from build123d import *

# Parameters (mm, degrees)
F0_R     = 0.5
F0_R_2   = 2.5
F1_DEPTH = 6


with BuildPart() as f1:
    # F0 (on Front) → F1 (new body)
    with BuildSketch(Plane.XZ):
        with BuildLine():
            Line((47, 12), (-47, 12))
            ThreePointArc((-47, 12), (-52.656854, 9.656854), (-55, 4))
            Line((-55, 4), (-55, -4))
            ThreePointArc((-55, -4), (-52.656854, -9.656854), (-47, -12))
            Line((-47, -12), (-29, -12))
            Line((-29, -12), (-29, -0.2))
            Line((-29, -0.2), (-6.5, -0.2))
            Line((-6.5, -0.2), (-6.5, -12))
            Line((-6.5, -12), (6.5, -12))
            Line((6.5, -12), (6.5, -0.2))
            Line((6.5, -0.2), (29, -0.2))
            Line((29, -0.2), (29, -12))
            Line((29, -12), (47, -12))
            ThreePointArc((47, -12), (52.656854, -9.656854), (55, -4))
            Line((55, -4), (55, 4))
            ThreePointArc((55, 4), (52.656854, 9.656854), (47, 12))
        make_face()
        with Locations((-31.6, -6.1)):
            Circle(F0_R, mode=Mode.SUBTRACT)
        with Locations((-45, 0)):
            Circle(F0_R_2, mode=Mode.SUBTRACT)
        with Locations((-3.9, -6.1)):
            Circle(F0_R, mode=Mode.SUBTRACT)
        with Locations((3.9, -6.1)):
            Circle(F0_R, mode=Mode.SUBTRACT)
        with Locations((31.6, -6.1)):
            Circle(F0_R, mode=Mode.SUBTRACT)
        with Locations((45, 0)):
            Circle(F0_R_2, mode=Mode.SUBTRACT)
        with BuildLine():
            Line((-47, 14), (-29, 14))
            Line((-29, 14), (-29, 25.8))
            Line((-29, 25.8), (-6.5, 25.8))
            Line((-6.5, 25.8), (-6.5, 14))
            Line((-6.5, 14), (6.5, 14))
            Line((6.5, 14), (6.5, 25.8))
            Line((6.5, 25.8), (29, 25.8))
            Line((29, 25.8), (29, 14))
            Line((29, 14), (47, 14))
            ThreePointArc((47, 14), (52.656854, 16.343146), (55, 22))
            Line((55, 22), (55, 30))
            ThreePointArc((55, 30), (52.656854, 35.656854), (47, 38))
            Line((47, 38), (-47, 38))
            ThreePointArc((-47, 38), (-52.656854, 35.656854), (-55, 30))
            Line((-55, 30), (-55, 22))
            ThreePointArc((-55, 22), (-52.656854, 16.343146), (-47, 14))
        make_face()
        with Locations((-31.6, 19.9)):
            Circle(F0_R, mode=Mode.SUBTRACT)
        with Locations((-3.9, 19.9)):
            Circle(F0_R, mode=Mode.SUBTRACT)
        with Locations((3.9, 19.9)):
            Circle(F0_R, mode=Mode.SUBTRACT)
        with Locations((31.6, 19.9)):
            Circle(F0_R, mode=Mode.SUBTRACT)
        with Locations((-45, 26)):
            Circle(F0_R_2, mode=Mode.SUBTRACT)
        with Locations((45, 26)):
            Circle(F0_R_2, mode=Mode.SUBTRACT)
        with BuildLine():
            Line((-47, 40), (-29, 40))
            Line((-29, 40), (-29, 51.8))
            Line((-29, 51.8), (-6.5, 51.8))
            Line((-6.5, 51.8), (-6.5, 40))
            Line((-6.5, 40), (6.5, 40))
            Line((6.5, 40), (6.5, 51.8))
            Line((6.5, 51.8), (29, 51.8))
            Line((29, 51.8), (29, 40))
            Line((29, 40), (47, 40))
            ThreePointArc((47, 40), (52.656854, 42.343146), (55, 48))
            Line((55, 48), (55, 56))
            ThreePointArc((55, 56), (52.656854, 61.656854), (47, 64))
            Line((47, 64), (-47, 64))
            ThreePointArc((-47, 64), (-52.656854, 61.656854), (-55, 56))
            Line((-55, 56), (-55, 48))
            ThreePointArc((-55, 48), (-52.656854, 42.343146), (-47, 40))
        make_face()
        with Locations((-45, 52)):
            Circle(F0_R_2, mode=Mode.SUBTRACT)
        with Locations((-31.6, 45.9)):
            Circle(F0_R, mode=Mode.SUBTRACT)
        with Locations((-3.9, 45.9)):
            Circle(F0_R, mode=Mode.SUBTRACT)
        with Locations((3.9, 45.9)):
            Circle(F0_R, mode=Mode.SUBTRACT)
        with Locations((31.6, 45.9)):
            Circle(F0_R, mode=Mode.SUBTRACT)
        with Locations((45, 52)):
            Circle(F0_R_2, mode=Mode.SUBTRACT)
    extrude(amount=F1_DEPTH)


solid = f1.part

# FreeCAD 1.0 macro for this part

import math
import FreeCAD as App
import Part
import Sketcher
Q = App.Units.Quantity

doc = App.newDocument("Part")
body = doc.addObject("PartDesign::Body", "Body")
body.AllowCompound = True

# Sketch on XZ plane
sketch1 = doc.addObject("Sketcher::SketchObject", "Sketch")
body.addObject(sketch1)
sketch1.AttachmentSupport = (doc.XZ_Plane, [""])
sketch1.MapMode = "FlatFace"
sketch1.addGeometry([
    Part.LineSegment(App.Vector(47, 12, 0), App.Vector(-47, 12, 0)),  # 0
    Part.ArcOfCircle(Part.Circle(App.Vector(-46.999999, 3.999999, 0), App.Vector(0, 0, 1), 8.000001), math.radians(90.000006), math.radians(179.999994)),  # 1
    Part.LineSegment(App.Vector(-55, 4, 0), App.Vector(-55, -4, 0)),  # 2
    Part.ArcOfCircle(Part.Circle(App.Vector(-46.999999, -3.999999, 0), App.Vector(0, 0, 1), 8.000001), math.radians(-179.999994), math.radians(-90.000006)),  # 3
    Part.LineSegment(App.Vector(-47, -12, 0), App.Vector(-29, -12, 0)),  # 4
    Part.LineSegment(App.Vector(-29, -12, 0), App.Vector(-29, -0.2, 0)),  # 5
    Part.LineSegment(App.Vector(-29, -0.2, 0), App.Vector(-6.5, -0.2, 0)),  # 6
    Part.LineSegment(App.Vector(-6.5, -0.2, 0), App.Vector(-6.5, -12, 0)),  # 7
    Part.LineSegment(App.Vector(-6.5, -12, 0), App.Vector(6.5, -12, 0)),  # 8
    Part.LineSegment(App.Vector(6.5, -12, 0), App.Vector(6.5, -0.2, 0)),  # 9
    Part.LineSegment(App.Vector(6.5, -0.2, 0), App.Vector(29, -0.2, 0)),  # 10
    Part.LineSegment(App.Vector(29, -0.2, 0), App.Vector(29, -12, 0)),  # 11
    Part.LineSegment(App.Vector(29, -12, 0), App.Vector(47, -12, 0)),  # 12
    Part.ArcOfCircle(Part.Circle(App.Vector(46.999999, -3.999999, 0), App.Vector(0, 0, 1), 8.000001), math.radians(-89.999994), math.radians(-0.000006)),  # 13
    Part.LineSegment(App.Vector(55, -4, 0), App.Vector(55, 4, 0)),  # 14
    Part.ArcOfCircle(Part.Circle(App.Vector(46.999999, 3.999999, 0), App.Vector(0, 0, 1), 8.000001), math.radians(0.000006), math.radians(89.999994)),  # 15
    Part.Circle(App.Vector(-31.6, -6.1, 0), App.Vector(0, 0, 1), 0.5),  # 16
    Part.Circle(App.Vector(-3.9, -6.1, 0), App.Vector(0, 0, 1), 0.5),  # 17
    Part.Circle(App.Vector(3.9, -6.1, 0), App.Vector(0, 0, 1), 0.5),  # 18
    Part.Circle(App.Vector(31.6, -6.1, 0), App.Vector(0, 0, 1), 0.5),  # 19
    Part.Circle(App.Vector(-45, 0, 0), App.Vector(0, 0, 1), 2.5),  # 20
    Part.Circle(App.Vector(45, 0, 0), App.Vector(0, 0, 1), 2.5),  # 21
    Part.LineSegment(App.Vector(-47, 14, 0), App.Vector(-29, 14, 0)),  # 22
    Part.LineSegment(App.Vector(-29, 14, 0), App.Vector(-29, 25.8, 0)),  # 23
    Part.LineSegment(App.Vector(-29, 25.8, 0), App.Vector(-6.5, 25.8, 0)),  # 24
    Part.LineSegment(App.Vector(-6.5, 25.8, 0), App.Vector(-6.5, 14, 0)),  # 25
    Part.LineSegment(App.Vector(-6.5, 14, 0), App.Vector(6.5, 14, 0)),  # 26
    Part.LineSegment(App.Vector(6.5, 14, 0), App.Vector(6.5, 25.8, 0)),  # 27
    Part.LineSegment(App.Vector(6.5, 25.8, 0), App.Vector(29, 25.8, 0)),  # 28
    Part.LineSegment(App.Vector(29, 25.8, 0), App.Vector(29, 14, 0)),  # 29
    Part.LineSegment(App.Vector(29, 14, 0), App.Vector(47, 14, 0)),  # 30
    Part.ArcOfCircle(Part.Circle(App.Vector(46.999999, 22.000001, 0), App.Vector(0, 0, 1), 8.000001), math.radians(-89.999994), math.radians(-0.000006)),  # 31
    Part.LineSegment(App.Vector(55, 22, 0), App.Vector(55, 30, 0)),  # 32
    Part.ArcOfCircle(Part.Circle(App.Vector(46.999999, 29.999999, 0), App.Vector(0, 0, 1), 8.000001), math.radians(0.000006), math.radians(89.999994)),  # 33
    Part.LineSegment(App.Vector(47, 38, 0), App.Vector(-47, 38, 0)),  # 34
    Part.ArcOfCircle(Part.Circle(App.Vector(-46.999999, 29.999999, 0), App.Vector(0, 0, 1), 8.000001), math.radians(90.000006), math.radians(179.999994)),  # 35
    Part.LineSegment(App.Vector(-55, 30, 0), App.Vector(-55, 22, 0)),  # 36
    Part.ArcOfCircle(Part.Circle(App.Vector(-46.999999, 22.000001, 0), App.Vector(0, 0, 1), 8.000001), math.radians(-179.999994), math.radians(-90.000006)),  # 37
    Part.Circle(App.Vector(-31.6, 19.9, 0), App.Vector(0, 0, 1), 0.5),  # 38
    Part.Circle(App.Vector(-3.9, 19.9, 0), App.Vector(0, 0, 1), 0.5),  # 39
    Part.Circle(App.Vector(3.9, 19.9, 0), App.Vector(0, 0, 1), 0.5),  # 40
    Part.Circle(App.Vector(31.6, 19.9, 0), App.Vector(0, 0, 1), 0.5),  # 41
    Part.Circle(App.Vector(-45, 26, 0), App.Vector(0, 0, 1), 2.5),  # 42
    Part.Circle(App.Vector(45, 26, 0), App.Vector(0, 0, 1), 2.5),  # 43
    Part.LineSegment(App.Vector(-47, 40, 0), App.Vector(-29, 40, 0)),  # 44
    Part.LineSegment(App.Vector(-29, 40, 0), App.Vector(-29, 51.8, 0)),  # 45
    Part.LineSegment(App.Vector(-29, 51.8, 0), App.Vector(-6.5, 51.8, 0)),  # 46
    Part.LineSegment(App.Vector(-6.5, 51.8, 0), App.Vector(-6.5, 40, 0)),  # 47
    Part.LineSegment(App.Vector(-6.5, 40, 0), App.Vector(6.5, 40, 0)),  # 48
    Part.LineSegment(App.Vector(6.5, 40, 0), App.Vector(6.5, 51.8, 0)),  # 49
    Part.LineSegment(App.Vector(6.5, 51.8, 0), App.Vector(29, 51.8, 0)),  # 50
    Part.LineSegment(App.Vector(29, 51.8, 0), App.Vector(29, 40, 0)),  # 51
    Part.LineSegment(App.Vector(29, 40, 0), App.Vector(47, 40, 0)),  # 52
    Part.ArcOfCircle(Part.Circle(App.Vector(46.999999, 48.000001, 0), App.Vector(0, 0, 1), 8.000001), math.radians(-89.999994), math.radians(-0.000006)),  # 53
    Part.LineSegment(App.Vector(55, 48, 0), App.Vector(55, 56, 0)),  # 54
    Part.ArcOfCircle(Part.Circle(App.Vector(46.999999, 55.999999, 0), App.Vector(0, 0, 1), 8.000001), math.radians(0.000006), math.radians(89.999994)),  # 55
    Part.LineSegment(App.Vector(47, 64, 0), App.Vector(-47, 64, 0)),  # 56
    Part.ArcOfCircle(Part.Circle(App.Vector(-46.999999, 55.999999, 0), App.Vector(0, 0, 1), 8.000001), math.radians(90.000006), math.radians(179.999994)),  # 57
    Part.LineSegment(App.Vector(-55, 56, 0), App.Vector(-55, 48, 0)),  # 58
    Part.ArcOfCircle(Part.Circle(App.Vector(-46.999999, 48.000001, 0), App.Vector(0, 0, 1), 8.000001), math.radians(-179.999994), math.radians(-90.000006)),  # 59
    Part.Circle(App.Vector(-31.6, 45.9, 0), App.Vector(0, 0, 1), 0.5),  # 60
    Part.Circle(App.Vector(-3.9, 45.9, 0), App.Vector(0, 0, 1), 0.5),  # 61
    Part.Circle(App.Vector(3.9, 45.9, 0), App.Vector(0, 0, 1), 0.5),  # 62
    Part.Circle(App.Vector(31.6, 45.9, 0), App.Vector(0, 0, 1), 0.5),  # 63
    Part.Circle(App.Vector(-45, 52, 0), App.Vector(0, 0, 1), 2.5),  # 64
    Part.Circle(App.Vector(45, 52, 0), App.Vector(0, 0, 1), 2.5),  # 65
], False)
sketch1.addConstraint([
    Sketcher.Constraint("Tangent", 0, 2, 1, 1),
    Sketcher.Constraint("Tangent", 1, 2, 2, 1),
    Sketcher.Constraint("Tangent", 2, 2, 3, 1),
    Sketcher.Constraint("Tangent", 3, 2, 4, 1),
    Sketcher.Constraint("Coincident", 4, 2, 5, 1),
    Sketcher.Constraint("Coincident", 5, 2, 6, 1),
    Sketcher.Constraint("Coincident", 6, 2, 7, 1),
    Sketcher.Constraint("Coincident", 7, 2, 8, 1),
    Sketcher.Constraint("Coincident", 8, 2, 9, 1),
    Sketcher.Constraint("Coincident", 9, 2, 10, 1),
    Sketcher.Constraint("Coincident", 10, 2, 11, 1),
    Sketcher.Constraint("Coincident", 11, 2, 12, 1),
    Sketcher.Constraint("Tangent", 12, 2, 13, 1),
    Sketcher.Constraint("Tangent", 13, 2, 14, 1),
    Sketcher.Constraint("Tangent", 14, 2, 15, 1),
    Sketcher.Constraint("Tangent", 15, 2, 0, 1),
    Sketcher.Constraint("Coincident", 22, 2, 23, 1),
    Sketcher.Constraint("Coincident", 23, 2, 24, 1),
    Sketcher.Constraint("Coincident", 24, 2, 25, 1),
    Sketcher.Constraint("Coincident", 25, 2, 26, 1),
    Sketcher.Constraint("Coincident", 26, 2, 27, 1),
    Sketcher.Constraint("Coincident", 27, 2, 28, 1),
    Sketcher.Constraint("Coincident", 28, 2, 29, 1),
    Sketcher.Constraint("Coincident", 29, 2, 30, 1),
    Sketcher.Constraint("Tangent", 30, 2, 31, 1),
    Sketcher.Constraint("Tangent", 31, 2, 32, 1),
    Sketcher.Constraint("Tangent", 32, 2, 33, 1),
    Sketcher.Constraint("Tangent", 33, 2, 34, 1),
    Sketcher.Constraint("Tangent", 34, 2, 35, 1),
    Sketcher.Constraint("Tangent", 35, 2, 36, 1),
    Sketcher.Constraint("Tangent", 36, 2, 37, 1),
    Sketcher.Constraint("Tangent", 37, 2, 22, 1),
    Sketcher.Constraint("Coincident", 44, 2, 45, 1),
    Sketcher.Constraint("Coincident", 45, 2, 46, 1),
    Sketcher.Constraint("Coincident", 46, 2, 47, 1),
    Sketcher.Constraint("Coincident", 47, 2, 48, 1),
    Sketcher.Constraint("Coincident", 48, 2, 49, 1),
    Sketcher.Constraint("Coincident", 49, 2, 50, 1),
    Sketcher.Constraint("Coincident", 50, 2, 51, 1),
    Sketcher.Constraint("Coincident", 51, 2, 52, 1),
    Sketcher.Constraint("Tangent", 52, 2, 53, 1),
    Sketcher.Constraint("Tangent", 53, 2, 54, 1),
    Sketcher.Constraint("Tangent", 54, 2, 55, 1),
    Sketcher.Constraint("Tangent", 55, 2, 56, 1),
    Sketcher.Constraint("Tangent", 56, 2, 57, 1),
    Sketcher.Constraint("Tangent", 57, 2, 58, 1),
    Sketcher.Constraint("Tangent", 58, 2, 59, 1),
    Sketcher.Constraint("Tangent", 59, 2, 44, 1),
    Sketcher.Constraint("Horizontal", 0),
    Sketcher.Constraint("Vertical", 2),
    Sketcher.Constraint("Horizontal", 4),
    Sketcher.Constraint("Vertical", 5),
    Sketcher.Constraint("Horizontal", 6),
    Sketcher.Constraint("Vertical", 7),
    Sketcher.Constraint("Horizontal", 8),
    Sketcher.Constraint("Vertical", 9),
    Sketcher.Constraint("Horizontal", 10),
    Sketcher.Constraint("Vertical", 11),
    Sketcher.Constraint("Horizontal", 12),
    Sketcher.Constraint("Vertical", 14),
    Sketcher.Constraint("Horizontal", 22),
    Sketcher.Constraint("Vertical", 23),
    Sketcher.Constraint("Horizontal", 24),
    Sketcher.Constraint("Vertical", 25),
    Sketcher.Constraint("Horizontal", 26),
    Sketcher.Constraint("Vertical", 27),
    Sketcher.Constraint("Horizontal", 28),
    Sketcher.Constraint("Vertical", 29),
    Sketcher.Constraint("Horizontal", 30),
    Sketcher.Constraint("Vertical", 32),
    Sketcher.Constraint("Horizontal", 34),
    Sketcher.Constraint("Vertical", 36),
    Sketcher.Constraint("Horizontal", 44),
    Sketcher.Constraint("Vertical", 45),
    Sketcher.Constraint("Horizontal", 46),
    Sketcher.Constraint("Vertical", 47),
    Sketcher.Constraint("Horizontal", 48),
    Sketcher.Constraint("Vertical", 49),
    Sketcher.Constraint("Horizontal", 50),
    Sketcher.Constraint("Vertical", 51),
    Sketcher.Constraint("Horizontal", 52),
    Sketcher.Constraint("Vertical", 54),
    Sketcher.Constraint("Horizontal", 56),
    Sketcher.Constraint("Vertical", 58),
    Sketcher.Constraint("Equal", 1, 3),
    Sketcher.Constraint("Equal", 3, 13),
    Sketcher.Constraint("Equal", 13, 15),
    Sketcher.Constraint("Equal", 16, 17),
    Sketcher.Constraint("Equal", 17, 18),
    Sketcher.Constraint("Equal", 18, 19),
    Sketcher.Constraint("Equal", 20, 21),
    Sketcher.Constraint("Equal", 15, 31),
    Sketcher.Constraint("Equal", 31, 33),
    Sketcher.Constraint("Equal", 33, 35),
    Sketcher.Constraint("Equal", 35, 37),
    Sketcher.Constraint("Equal", 19, 38),
    Sketcher.Constraint("Equal", 38, 39),
    Sketcher.Constraint("Equal", 39, 40),
    Sketcher.Constraint("Equal", 40, 41),
    Sketcher.Constraint("Equal", 21, 42),
    Sketcher.Constraint("Equal", 42, 43),
    Sketcher.Constraint("Equal", 37, 53),
    Sketcher.Constraint("Equal", 53, 55),
    Sketcher.Constraint("Equal", 55, 57),
    Sketcher.Constraint("Equal", 57, 59),
    Sketcher.Constraint("Equal", 41, 60),
    Sketcher.Constraint("Equal", 60, 61),
    Sketcher.Constraint("Equal", 61, 62),
    Sketcher.Constraint("Equal", 62, 63),
    Sketcher.Constraint("Equal", 43, 64),
    Sketcher.Constraint("Equal", 64, 65),
    Sketcher.Constraint("Symmetric", 1, 3, 13, 3, -1, 1),
    Sketcher.Constraint("Symmetric", 20, 3, 21, 3, -1, 1),
    Sketcher.Constraint("Symmetric", 17, 3, 18, 3, -2),
    Sketcher.Constraint("Symmetric", 16, 3, 19, 3, -2),
    Sketcher.Constraint("Symmetric", 31, 3, 37, 3, -2),
    Sketcher.Constraint("Symmetric", 39, 3, 40, 3, -2),
    Sketcher.Constraint("Symmetric", 38, 3, 41, 3, -2),
    Sketcher.Constraint("Symmetric", 42, 3, 43, 3, -2),
    Sketcher.Constraint("Symmetric", 53, 3, 59, 3, -2),
    Sketcher.Constraint("Symmetric", 61, 3, 62, 3, -2),
    Sketcher.Constraint("Symmetric", 60, 3, 63, 3, -2),
    Sketcher.Constraint("Symmetric", 64, 3, 65, 3, -2),
    Sketcher.Constraint("Symmetric", 6, 2, 9, 2, -2),
    Sketcher.Constraint("Symmetric", 4, 2, 11, 2, -2),
    Sketcher.Constraint("Symmetric", 24, 2, 27, 2, -2),
    Sketcher.Constraint("Symmetric", 46, 2, 49, 2, -2),
    Sketcher.Constraint("PointOnObject", 20, 3, -1),
    Sketcher.Constraint("Horizontal", 16, 3, 17, 3),
    Sketcher.Constraint("Horizontal", 38, 3, 39, 3),
    Sketcher.Constraint("Horizontal", 60, 3, 61, 3),
    Sketcher.Constraint("Horizontal", 4, 2, 7, 2),
    Sketcher.Constraint("Horizontal", 22, 2, 25, 2),
    Sketcher.Constraint("Horizontal", 44, 2, 47, 2),
    Sketcher.Constraint("Vertical", 15, 3, 31, 3),
    Sketcher.Constraint("Vertical", 16, 3, 38, 3),
    Sketcher.Constraint("Vertical", 17, 3, 39, 3),
    Sketcher.Constraint("Vertical", 20, 3, 42, 3),
    Sketcher.Constraint("Vertical", 33, 3, 53, 3),
    Sketcher.Constraint("Vertical", 38, 3, 60, 3),
    Sketcher.Constraint("Vertical", 39, 3, 61, 3),
    Sketcher.Constraint("Vertical", 42, 3, 64, 3),
    Sketcher.Constraint("Vertical", 5, 2, 22, 2),
    Sketcher.Constraint("Vertical", 7, 2, 24, 2),
    Sketcher.Constraint("Vertical", 11, 2, 28, 2),
    Sketcher.Constraint("Vertical", 23, 2, 44, 2),
    Sketcher.Constraint("Vertical", 25, 2, 46, 2),
    Sketcher.Constraint("Vertical", 29, 2, 50, 2),
    Sketcher.Constraint("Equal", 11, 23),
    Sketcher.Constraint("Equal", 14, 32),
    Sketcher.Constraint("Equal", 29, 45),
    Sketcher.Constraint("Equal", 36, 54),
    Sketcher.Constraint("Diameter", 16, Q("1 mm")),
    Sketcher.Constraint("Diameter", 20, Q("5 mm")),
    Sketcher.Constraint("Radius", 1, Q("8.000001 mm")),
    Sketcher.Constraint("DistanceX", 0, 2, 0, 1, Q("94 mm")),
    Sketcher.Constraint("DistanceX", 4, 1, 4, 2, Q("18 mm")),
    Sketcher.Constraint("DistanceX", 8, 1, 8, 2, Q("13 mm")),
    Sketcher.Constraint("DistanceY", 2, 2, 2, 1, Q("8 mm")),
    Sketcher.Constraint("DistanceY", 5, 1, 5, 2, Q("11.8 mm")),
    Sketcher.Constraint("DistanceX", 20, 3, -1, 1, Q("45 mm")),
    Sketcher.Constraint("DistanceY", -1, 1, 31, 3, Q("22.000001 mm")),
    Sketcher.Constraint("DistanceY", -1, 1, 42, 3, Q("26 mm")),
    Sketcher.Constraint("DistanceY", -1, 1, 53, 3, Q("48.000001 mm")),
    Sketcher.Constraint("DistanceY", -1, 1, 64, 3, Q("52 mm")),
    Sketcher.Constraint("DistanceX", 16, 3, -1, 1, Q("31.6 mm")),
    Sketcher.Constraint("DistanceY", 16, 3, -1, 1, Q("6.1 mm")),
    Sketcher.Constraint("DistanceX", 17, 3, -1, 1, Q("3.9 mm")),
    Sketcher.Constraint("DistanceY", -1, 1, 38, 3, Q("19.9 mm")),
    Sketcher.Constraint("DistanceY", -1, 1, 60, 3, Q("45.9 mm")),
])
pad1 = doc.addObject("PartDesign::Pad", "Pad")
body.addObject(pad1)
pad1.Profile = sketch1
pad1.Length = 6

doc.recompute()
